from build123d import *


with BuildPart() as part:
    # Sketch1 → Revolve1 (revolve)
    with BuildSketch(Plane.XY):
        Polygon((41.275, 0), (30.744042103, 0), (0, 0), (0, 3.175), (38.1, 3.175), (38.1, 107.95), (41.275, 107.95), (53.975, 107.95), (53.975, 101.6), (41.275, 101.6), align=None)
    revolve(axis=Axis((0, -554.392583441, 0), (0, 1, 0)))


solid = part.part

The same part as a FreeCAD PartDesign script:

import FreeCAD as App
import Part
import Sketcher
Q = App.Units.Quantity


def add_polygon(sketch, points):
    """Adds a closed chain of lines whose ends are joined by coincident constraints."""
    first, n = sketch.GeometryCount, len(points)
    for a, b in zip(points, points[1:] + points[:1]):
        sketch.addGeometry(Part.LineSegment(App.Vector(*a, 0), App.Vector(*b, 0)), False)
    for i in range(n):
        sketch.addConstraint(Sketcher.Constraint("Coincident", first + i, 2, first + (i + 1) % n, 1))

doc = App.newDocument("Part")
body = doc.addObject("PartDesign::Body", "Body")

# Sketch on XY plane
sketch1 = body.newObject("Sketcher::SketchObject", "Sketch")
sketch1.AttachmentSupport = (doc.getObject("XY_Plane"), [""])
sketch1.MapMode = "FlatFace"
add_polygon(sketch1, [(0, 0), (41.275, 0), (41.275, 101.6), (53.975, 101.6), (53.975, 107.95), (38.1, 107.95), (38.1, 3.175), (0, 3.175)])  # lines 0-7
sketch1.addConstraint([
    Sketcher.Constraint("Horizontal", 0),
    Sketcher.Constraint("Vertical", 1),
    Sketcher.Constraint("Horizontal", 2),
    Sketcher.Constraint("Vertical", 3),
    Sketcher.Constraint("Horizontal", 4),
    Sketcher.Constraint("Vertical", 5),
    Sketcher.Constraint("Horizontal", 6),
    Sketcher.Constraint("Vertical", 7),
    Sketcher.Constraint("Coincident", 7, 2, -1, 1),
    Sketcher.Constraint("DistanceY", 1, 1, 1, 2, Q("4 in")),
    Sketcher.Constraint("DistanceX", 2, 1, 2, 2, Q("0.5 in")),
    Sketcher.Constraint("DistanceX", 6, 2, 6, 1, Q("1.5 in")),
    Sketcher.Constraint("DistanceY", 3, 1, 3, 2, Q("0.25 in")),
    Sketcher.Constraint("DistanceX", 0, 1, 0, 2, Q("1.625 in")),
    Sketcher.Constraint("DistanceY", 5, 2, 5, 1, Q("4.125 in")),
])
revolution = body.newObject("PartDesign::Revolution", "Revolution")
revolution.Profile = sketch1
revolution.ReferenceAxis = (sketch1, ["V_Axis"])
revolution.Angle = 360

doc.recompute()
